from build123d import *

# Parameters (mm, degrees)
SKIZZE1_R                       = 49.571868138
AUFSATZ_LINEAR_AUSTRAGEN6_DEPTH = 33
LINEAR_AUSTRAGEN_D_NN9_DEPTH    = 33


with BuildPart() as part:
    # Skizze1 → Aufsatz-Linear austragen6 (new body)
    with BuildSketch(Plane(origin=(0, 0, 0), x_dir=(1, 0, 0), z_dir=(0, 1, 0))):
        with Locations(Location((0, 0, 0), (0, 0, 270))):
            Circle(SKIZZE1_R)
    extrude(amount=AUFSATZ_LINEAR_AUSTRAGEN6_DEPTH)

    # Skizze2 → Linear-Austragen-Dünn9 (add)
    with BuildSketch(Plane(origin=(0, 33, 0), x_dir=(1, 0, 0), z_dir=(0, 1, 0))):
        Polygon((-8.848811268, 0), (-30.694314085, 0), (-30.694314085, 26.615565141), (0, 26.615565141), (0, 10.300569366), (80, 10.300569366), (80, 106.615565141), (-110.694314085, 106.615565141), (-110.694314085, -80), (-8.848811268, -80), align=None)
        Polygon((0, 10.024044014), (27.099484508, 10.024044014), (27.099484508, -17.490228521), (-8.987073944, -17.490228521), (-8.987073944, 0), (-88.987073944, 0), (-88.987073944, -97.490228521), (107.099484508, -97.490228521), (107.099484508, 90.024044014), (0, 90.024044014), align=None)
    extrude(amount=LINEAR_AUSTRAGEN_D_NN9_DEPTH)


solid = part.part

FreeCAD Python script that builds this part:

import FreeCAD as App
import Part
import Sketcher
from FreeCAD import Vector

doc = App.newDocument("Part")
body = doc.addObject("PartDesign::Body", "Body")

# Sketch on XZ plane
sketch1 = body.newObject("Sketcher::SketchObject", "Sketch")
sketch1.AttachmentSupport = (doc.getObject("XZ_Plane"), [""])
sketch1.MapMode = "FlatFace"
sketch1.addGeometry(Part.Circle(Vector(0, 0, 0), Vector(0, 0, 1), 50), False)
sketch1.addConstraint(Sketcher.Constraint("Coincident", 0, 3, -1, 1))
sketch1.addConstraint(Sketcher.Constraint("Diameter", 0, 99.143736))
pad1 = body.newObject("PartDesign::Pad", "Pad")
pad1.Profile = sketch1
pad1.Length = 33
pad1.Reversed = True

# Sketch on XZ plane
sketch2 = body.newObject("Sketcher::SketchObject", "Sketch001")
sketch2.AttachmentSupport = (doc.getObject("XZ_Plane"), [""])
sketch2.MapMode = "FlatFace"
sketch2.AttachmentOffset = App.Placement(Vector(0, 0, -33), App.Rotation())
sketch2.addGeometry(Part.LineSegment(Vector(-111, 80, 0), Vector(-89, 80, 0)), False)
sketch2.addGeometry(Part.LineSegment(Vector(-89, 80, 0), Vector(-89, 97, 0)), False)
sketch2.addGeometry(Part.LineSegment(Vector(-89, 97, 0), Vector(107, 97, 0)), False)
sketch2.addGeometry(Part.LineSegment(Vector(107, 97, 0), Vector(107, -90, 0)), False)
sketch2.addGeometry(Part.LineSegment(Vector(107, -90, 0), Vector(80, -90, 0)), False)
sketch2.addGeometry(Part.LineSegment(Vector(80, -90, 0), Vector(80, -107, 0)), False)
sketch2.addGeometry(Part.LineSegment(Vector(80, -107, 0), Vector(-111, -107, 0)), False)
sketch2.addGeometry(Part.LineSegment(Vector(-111, -107, 0), Vector(-111, 80, 0)), False)
sketch2.addGeometry(Part.LineSegment(Vector(-9, 17, 0), Vector(-9, 0, 0)), False)
sketch2.addGeometry(Part.LineSegment(Vector(-9, 0, 0), Vector(-31, 0, 0)), False)
sketch2.addGeometry(Part.LineSegment(Vector(-31, 0, 0), Vector(-31, -27, 0)), False)
sketch2.addGeometry(Part.LineSegment(Vector(-31, -27, 0), Vector(0, -27, 0)), False)
sketch2.addGeometry(Part.LineSegment(Vector(0, -27, 0), Vector(0, -10, 0)), False)
sketch2.addGeometry(Part.LineSegment(Vector(0, -10, 0), Vector(27, -10, 0)), False)
sketch2.addGeometry(Part.LineSegment(Vector(27, -10, 0), Vector(27, 17, 0)), False)
sketch2.addGeometry(Part.LineSegment(Vector(27, 17, 0), Vector(-9, 17, 0)), False)
sketch2.addConstraint(Sketcher.Constraint("Coincident", 0, 2, 1, 1))
sketch2.addConstraint(Sketcher.Constraint("Coincident", 1, 2, 2, 1))
sketch2.addConstraint(Sketcher.Constraint("Coincident", 2, 2, 3, 1))
sketch2.addConstraint(Sketcher.Constraint("Coincident", 3, 2, 4, 1))
sketch2.addConstraint(Sketcher.Constraint("Coincident", 4, 2, 5, 1))
sketch2.addConstraint(Sketcher.Constraint("Coincident", 5, 2, 6, 1))
sketch2.addConstraint(Sketcher.Constraint("Coincident", 6, 2, 7, 1))
sketch2.addConstraint(Sketcher.Constraint("Coincident", 7, 2, 0, 1))
sketch2.addConstraint(Sketcher.Constraint("Coincident", 8, 2, 9, 1))
sketch2.addConstraint(Sketcher.Constraint("Coincident", 9, 2, 10, 1))
sketch2.addConstraint(Sketcher.Constraint("Coincident", 10, 2, 11, 1))
sketch2.addConstraint(Sketcher.Constraint("Coincident", 11, 2, 12, 1))
sketch2.addConstraint(Sketcher.Constraint("Coincident", 12, 2, 13, 1))
sketch2.addConstraint(Sketcher.Constraint("Coincident", 13, 2, 14, 1))
sketch2.addConstraint(Sketcher.Constraint("Coincident", 14, 2, 15, 1))
sketch2.addConstraint(Sketcher.Constraint("Coincident", 15, 2, 8, 1))
sketch2.addConstraint(Sketcher.Constraint("Horizontal", 0))
sketch2.addConstraint(Sketcher.Constraint("Vertical", 1))
sketch2.addConstraint(Sketcher.Constraint("Horizontal", 2))
sketch2.addConstraint(Sketcher.Constraint("Vertical", 3))
sketch2.addConstraint(Sketcher.Constraint("Horizontal", 4))
sketch2.addConstraint(Sketcher.Constraint("Vertical", 5))
sketch2.addConstraint(Sketcher.Constraint("Horizontal", 6))
sketch2.addConstraint(Sketcher.Constraint("Vertical", 7))
sketch2.addConstraint(Sketcher.Constraint("Vertical", 8))
sketch2.addConstraint(Sketcher.Constraint("Horizontal", 9))
sketch2.addConstraint(Sketcher.Constraint("Vertical", 10))
sketch2.addConstraint(Sketcher.Constraint("Horizontal", 11))
sketch2.addConstraint(Sketcher.Constraint("Vertical", 12))
sketch2.addConstraint(Sketcher.Constraint("Horizontal", 13))
sketch2.addConstraint(Sketcher.Constraint("Vertical", 14))
sketch2.addConstraint(Sketcher.Constraint("Horizontal", 15))
sketch2.addConstraint(Sketcher.Constraint("PointOnObject", 8, 2, -1))
sketch2.addConstraint(Sketcher.Constraint("PointOnObject", 11, 2, -2))
sketch2.addConstraint(Sketcher.Constraint("Equal", 4, 13))
sketch2.addConstraint(Sketcher.Constraint("Equal", 1, 8))
sketch2.addConstraint(Sketcher.Constraint("Equal", 5, 12))
sketch2.addConstraint(Sketcher.Constraint("DistanceY", -1, 1, 0, 2, 80.0))
sketch2.addConstraint(Sketcher.Constraint("DistanceX", -1, 1, 4, 2, 80.0))
sketch2.addConstraint(Sketcher.Constraint("DistanceX", 7, 2, 9, 2, 80.0))
sketch2.addConstraint(Sketcher.Constraint("DistanceY", 6, 2, 10, 2, 80.0))
sketch2.addConstraint(Sketcher.Constraint("DistanceX", 0, 1, 0, 2, 21.70724))
sketch2.addConstraint(Sketcher.Constraint("DistanceX", 2, 1, 2, 2, 196.086558))
sketch2.addConstraint(Sketcher.Constraint("DistanceY", 1, 1, 1, 2, 17.490229))
sketch2.addConstraint(Sketcher.Constraint("DistanceY", 5, 2, 5, 1, 16.591521))
sketch2.addConstraint(Sketcher.Constraint("DistanceX", 4, 2, 4, 1, 27.099485))
sketch2.addConstraint(Sketcher.Constraint("DistanceX", 9, 2, 9, 1, 21.845503))
sketch2.addConstraint(Sketcher.Constraint("DistanceY", 3, 2, 3, 1, 187.514273))
pad2 = body.newObject("PartDesign::Pad", "Pad001")
pad2.Profile = sketch2
pad2.Length = 33
pad2.Reversed = True

doc.recompute()
